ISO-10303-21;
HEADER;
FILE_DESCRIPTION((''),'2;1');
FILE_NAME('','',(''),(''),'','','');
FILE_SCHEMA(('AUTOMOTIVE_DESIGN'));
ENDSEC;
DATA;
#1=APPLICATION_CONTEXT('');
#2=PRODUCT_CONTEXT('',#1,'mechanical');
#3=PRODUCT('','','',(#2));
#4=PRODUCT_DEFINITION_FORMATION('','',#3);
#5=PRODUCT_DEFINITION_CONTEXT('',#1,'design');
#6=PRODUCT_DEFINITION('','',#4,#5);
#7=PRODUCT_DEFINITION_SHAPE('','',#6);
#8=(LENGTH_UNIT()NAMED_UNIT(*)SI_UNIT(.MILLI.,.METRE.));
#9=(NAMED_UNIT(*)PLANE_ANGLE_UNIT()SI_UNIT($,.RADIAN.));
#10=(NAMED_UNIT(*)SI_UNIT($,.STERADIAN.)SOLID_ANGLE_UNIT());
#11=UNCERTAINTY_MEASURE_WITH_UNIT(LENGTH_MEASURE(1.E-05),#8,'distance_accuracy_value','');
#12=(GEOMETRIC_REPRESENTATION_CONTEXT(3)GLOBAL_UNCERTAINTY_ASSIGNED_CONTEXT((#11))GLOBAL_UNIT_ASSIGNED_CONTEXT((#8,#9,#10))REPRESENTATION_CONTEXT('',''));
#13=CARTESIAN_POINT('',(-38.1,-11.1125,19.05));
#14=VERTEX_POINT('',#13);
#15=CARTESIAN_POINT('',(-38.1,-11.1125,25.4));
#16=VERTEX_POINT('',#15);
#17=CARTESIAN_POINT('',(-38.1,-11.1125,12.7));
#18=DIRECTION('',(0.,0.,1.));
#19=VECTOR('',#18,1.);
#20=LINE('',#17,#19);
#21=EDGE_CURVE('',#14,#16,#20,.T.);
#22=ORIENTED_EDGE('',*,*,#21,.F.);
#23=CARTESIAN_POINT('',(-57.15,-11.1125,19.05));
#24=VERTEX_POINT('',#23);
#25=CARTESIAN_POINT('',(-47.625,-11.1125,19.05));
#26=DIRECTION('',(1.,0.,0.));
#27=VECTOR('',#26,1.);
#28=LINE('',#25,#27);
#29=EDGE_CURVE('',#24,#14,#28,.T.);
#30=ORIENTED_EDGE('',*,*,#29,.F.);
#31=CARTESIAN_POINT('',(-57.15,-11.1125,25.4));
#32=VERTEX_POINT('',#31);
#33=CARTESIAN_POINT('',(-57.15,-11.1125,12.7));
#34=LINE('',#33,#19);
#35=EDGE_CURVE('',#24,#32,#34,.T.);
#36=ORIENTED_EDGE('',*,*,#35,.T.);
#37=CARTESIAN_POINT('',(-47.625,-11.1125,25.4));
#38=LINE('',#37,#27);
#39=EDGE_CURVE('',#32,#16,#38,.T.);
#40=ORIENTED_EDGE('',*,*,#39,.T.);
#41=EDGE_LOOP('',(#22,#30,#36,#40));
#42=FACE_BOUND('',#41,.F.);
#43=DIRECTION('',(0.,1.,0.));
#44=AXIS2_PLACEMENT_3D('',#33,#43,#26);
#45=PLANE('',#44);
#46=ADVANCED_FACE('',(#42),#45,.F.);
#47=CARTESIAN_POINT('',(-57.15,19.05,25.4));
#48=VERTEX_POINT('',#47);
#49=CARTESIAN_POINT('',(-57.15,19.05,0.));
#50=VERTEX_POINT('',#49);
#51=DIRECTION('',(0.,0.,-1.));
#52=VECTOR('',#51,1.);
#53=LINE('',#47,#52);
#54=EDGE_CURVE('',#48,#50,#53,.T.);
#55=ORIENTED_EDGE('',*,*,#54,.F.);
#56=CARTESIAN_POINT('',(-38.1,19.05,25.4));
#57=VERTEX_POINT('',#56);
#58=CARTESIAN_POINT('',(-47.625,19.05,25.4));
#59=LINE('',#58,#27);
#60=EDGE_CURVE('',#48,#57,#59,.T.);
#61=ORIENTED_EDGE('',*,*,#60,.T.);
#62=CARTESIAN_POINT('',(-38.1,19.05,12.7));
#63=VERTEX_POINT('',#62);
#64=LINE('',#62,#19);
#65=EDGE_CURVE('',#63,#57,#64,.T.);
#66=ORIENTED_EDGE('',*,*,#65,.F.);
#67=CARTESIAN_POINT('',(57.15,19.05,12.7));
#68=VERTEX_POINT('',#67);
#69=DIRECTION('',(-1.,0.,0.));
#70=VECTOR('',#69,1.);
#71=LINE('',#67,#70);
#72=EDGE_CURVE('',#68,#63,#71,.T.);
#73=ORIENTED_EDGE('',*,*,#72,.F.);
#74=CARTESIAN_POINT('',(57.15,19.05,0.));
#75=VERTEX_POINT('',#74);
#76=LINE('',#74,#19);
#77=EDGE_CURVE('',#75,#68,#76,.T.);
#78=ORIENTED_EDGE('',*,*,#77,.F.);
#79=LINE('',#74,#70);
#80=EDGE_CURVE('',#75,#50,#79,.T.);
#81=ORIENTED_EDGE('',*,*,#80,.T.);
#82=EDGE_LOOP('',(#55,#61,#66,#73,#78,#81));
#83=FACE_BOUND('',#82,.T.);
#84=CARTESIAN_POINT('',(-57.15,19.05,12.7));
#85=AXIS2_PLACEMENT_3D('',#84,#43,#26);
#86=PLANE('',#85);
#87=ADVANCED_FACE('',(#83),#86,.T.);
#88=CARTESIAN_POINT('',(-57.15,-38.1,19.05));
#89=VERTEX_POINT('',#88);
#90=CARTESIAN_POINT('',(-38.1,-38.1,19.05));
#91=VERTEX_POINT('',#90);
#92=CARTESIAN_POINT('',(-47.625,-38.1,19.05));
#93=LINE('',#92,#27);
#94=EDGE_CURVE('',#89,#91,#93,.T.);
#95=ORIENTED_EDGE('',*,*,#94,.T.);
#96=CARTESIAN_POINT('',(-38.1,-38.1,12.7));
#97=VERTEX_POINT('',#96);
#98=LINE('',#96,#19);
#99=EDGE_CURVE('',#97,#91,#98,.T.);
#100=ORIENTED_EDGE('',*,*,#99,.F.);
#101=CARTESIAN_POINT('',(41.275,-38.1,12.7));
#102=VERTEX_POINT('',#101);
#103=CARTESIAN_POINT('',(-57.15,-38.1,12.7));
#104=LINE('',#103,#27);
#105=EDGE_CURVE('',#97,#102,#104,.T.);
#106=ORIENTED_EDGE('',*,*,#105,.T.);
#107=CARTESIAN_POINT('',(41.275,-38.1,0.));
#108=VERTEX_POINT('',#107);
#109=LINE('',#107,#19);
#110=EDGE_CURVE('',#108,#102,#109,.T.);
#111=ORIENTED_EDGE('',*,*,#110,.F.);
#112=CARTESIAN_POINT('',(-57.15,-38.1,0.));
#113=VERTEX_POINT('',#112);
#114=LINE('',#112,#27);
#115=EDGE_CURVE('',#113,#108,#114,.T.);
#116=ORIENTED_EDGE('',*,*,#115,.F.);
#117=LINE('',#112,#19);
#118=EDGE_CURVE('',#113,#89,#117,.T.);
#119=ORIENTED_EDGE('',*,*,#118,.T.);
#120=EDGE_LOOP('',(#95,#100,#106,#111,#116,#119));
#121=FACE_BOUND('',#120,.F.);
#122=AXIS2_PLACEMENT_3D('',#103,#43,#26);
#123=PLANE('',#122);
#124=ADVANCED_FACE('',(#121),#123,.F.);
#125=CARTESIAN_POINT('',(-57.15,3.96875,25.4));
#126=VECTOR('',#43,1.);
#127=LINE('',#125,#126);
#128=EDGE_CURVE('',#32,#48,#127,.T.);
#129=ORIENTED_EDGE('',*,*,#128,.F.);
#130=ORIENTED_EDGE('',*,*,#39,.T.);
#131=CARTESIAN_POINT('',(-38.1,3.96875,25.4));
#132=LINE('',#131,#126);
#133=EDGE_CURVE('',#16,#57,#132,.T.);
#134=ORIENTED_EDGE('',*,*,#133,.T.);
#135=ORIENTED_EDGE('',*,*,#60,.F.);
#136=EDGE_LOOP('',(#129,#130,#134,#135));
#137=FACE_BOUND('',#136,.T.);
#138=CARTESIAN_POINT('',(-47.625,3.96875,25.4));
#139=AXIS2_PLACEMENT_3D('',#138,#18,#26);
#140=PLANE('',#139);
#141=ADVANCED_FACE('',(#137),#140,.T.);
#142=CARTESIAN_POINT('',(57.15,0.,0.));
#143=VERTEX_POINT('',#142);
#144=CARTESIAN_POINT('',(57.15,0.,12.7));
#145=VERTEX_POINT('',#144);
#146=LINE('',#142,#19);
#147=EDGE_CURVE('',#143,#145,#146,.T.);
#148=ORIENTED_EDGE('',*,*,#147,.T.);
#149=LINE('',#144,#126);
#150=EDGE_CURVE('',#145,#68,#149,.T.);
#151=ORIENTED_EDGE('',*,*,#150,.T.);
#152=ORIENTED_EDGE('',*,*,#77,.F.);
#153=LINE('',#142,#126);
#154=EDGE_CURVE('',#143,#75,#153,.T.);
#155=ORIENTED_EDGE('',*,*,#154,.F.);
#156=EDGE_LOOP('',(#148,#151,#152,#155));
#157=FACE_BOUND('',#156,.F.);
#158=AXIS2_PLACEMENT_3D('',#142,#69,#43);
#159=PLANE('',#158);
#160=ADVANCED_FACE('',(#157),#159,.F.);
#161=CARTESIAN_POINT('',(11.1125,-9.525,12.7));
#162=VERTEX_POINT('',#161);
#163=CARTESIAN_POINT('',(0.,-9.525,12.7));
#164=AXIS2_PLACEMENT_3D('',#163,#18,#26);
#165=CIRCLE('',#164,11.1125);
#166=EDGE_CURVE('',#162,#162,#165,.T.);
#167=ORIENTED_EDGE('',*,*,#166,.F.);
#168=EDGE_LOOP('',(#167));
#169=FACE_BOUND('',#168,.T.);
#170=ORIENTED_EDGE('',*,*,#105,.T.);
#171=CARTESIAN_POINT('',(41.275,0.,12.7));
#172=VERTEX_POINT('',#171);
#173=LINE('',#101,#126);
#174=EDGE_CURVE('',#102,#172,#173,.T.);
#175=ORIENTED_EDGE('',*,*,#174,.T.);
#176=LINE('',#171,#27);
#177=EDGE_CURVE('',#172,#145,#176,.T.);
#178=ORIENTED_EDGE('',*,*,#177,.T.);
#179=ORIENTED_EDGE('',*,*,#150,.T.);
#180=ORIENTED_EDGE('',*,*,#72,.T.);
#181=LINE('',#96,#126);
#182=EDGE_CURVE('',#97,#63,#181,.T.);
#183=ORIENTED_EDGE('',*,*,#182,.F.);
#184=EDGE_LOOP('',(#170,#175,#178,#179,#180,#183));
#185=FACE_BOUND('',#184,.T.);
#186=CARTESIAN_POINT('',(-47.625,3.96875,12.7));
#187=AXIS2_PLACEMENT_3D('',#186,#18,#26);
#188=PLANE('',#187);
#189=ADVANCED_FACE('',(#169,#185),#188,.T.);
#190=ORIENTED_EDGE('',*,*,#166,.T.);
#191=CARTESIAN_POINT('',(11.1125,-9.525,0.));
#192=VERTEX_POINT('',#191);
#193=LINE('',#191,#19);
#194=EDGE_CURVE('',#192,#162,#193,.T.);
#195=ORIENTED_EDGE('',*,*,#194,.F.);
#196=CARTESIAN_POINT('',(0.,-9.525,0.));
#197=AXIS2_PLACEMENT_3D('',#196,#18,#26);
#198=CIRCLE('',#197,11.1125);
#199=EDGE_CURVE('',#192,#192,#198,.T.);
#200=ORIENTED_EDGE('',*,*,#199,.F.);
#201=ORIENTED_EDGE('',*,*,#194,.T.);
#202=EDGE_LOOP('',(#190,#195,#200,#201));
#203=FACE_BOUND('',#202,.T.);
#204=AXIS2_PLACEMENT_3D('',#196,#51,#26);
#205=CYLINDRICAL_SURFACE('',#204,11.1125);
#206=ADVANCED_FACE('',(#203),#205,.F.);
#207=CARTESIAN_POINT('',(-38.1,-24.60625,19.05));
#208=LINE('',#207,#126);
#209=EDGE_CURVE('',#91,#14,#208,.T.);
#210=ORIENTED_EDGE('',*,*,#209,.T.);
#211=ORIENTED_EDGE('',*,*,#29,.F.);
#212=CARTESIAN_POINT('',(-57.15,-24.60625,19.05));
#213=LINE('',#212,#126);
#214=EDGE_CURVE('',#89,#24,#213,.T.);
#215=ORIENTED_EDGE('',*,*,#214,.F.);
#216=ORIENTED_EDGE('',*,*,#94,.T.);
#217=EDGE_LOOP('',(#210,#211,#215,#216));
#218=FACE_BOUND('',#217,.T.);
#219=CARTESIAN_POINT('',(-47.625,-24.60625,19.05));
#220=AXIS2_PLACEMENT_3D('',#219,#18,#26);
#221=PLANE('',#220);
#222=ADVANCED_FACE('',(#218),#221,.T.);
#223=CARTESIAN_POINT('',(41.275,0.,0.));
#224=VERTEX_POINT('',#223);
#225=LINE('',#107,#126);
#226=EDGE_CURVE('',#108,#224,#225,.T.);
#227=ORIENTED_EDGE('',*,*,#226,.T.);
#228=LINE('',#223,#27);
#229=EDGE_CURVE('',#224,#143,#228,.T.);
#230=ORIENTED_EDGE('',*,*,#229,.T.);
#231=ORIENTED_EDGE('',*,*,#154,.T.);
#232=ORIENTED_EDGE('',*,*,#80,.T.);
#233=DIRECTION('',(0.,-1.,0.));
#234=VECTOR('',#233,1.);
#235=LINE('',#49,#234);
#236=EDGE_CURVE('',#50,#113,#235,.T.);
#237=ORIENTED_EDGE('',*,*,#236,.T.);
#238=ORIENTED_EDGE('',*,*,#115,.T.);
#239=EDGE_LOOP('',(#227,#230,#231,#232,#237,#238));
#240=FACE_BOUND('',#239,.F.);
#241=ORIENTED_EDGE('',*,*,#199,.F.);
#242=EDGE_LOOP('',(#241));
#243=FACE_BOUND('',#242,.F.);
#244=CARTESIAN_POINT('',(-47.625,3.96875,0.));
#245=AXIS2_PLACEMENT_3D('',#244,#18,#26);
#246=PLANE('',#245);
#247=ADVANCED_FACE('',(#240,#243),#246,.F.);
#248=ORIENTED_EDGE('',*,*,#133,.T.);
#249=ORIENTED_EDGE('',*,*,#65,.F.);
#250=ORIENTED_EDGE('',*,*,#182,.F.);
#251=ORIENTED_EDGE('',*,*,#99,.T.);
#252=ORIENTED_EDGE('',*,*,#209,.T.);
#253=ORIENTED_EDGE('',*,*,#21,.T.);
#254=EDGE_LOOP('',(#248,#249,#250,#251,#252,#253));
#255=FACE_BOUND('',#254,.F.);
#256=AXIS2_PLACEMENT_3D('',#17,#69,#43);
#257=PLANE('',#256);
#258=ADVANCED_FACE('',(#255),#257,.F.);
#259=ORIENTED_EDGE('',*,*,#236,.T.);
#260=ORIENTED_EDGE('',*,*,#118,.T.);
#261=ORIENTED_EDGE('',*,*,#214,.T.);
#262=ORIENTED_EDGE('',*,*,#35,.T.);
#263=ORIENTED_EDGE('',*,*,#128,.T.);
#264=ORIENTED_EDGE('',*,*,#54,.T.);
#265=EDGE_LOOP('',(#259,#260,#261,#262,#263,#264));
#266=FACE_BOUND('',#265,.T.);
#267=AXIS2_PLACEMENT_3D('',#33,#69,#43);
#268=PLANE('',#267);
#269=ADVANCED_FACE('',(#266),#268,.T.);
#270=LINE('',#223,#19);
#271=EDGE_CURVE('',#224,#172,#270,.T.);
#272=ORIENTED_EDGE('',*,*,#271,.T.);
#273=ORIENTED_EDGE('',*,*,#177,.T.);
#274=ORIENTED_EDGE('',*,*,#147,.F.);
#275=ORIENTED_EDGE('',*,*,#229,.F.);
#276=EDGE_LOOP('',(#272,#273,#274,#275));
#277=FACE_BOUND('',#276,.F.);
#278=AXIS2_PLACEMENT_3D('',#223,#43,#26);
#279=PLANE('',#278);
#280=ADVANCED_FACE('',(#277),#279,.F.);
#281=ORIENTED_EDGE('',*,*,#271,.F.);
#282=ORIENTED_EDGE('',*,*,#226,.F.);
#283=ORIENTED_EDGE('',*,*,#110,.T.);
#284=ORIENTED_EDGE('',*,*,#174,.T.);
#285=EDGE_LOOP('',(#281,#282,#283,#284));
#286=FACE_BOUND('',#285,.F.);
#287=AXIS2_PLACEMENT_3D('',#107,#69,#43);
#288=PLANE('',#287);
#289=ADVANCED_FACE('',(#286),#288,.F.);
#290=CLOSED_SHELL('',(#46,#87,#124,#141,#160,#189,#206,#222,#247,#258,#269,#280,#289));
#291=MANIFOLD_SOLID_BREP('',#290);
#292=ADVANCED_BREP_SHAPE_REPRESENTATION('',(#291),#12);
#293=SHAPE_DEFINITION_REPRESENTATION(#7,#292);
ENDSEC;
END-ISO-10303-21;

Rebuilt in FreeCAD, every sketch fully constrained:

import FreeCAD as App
import Part
import Sketcher
Q = App.Units.Quantity


def add_polygon(sketch, points):
    """Adds a closed chain of lines whose ends are joined by coincident constraints."""
    first, n = sketch.GeometryCount, len(points)
    for a, b in zip(points, points[1:] + points[:1]):
        sketch.addGeometry(Part.LineSegment(App.Vector(*a, 0), App.Vector(*b, 0)), False)
    for i in range(n):
        sketch.addConstraint(Sketcher.Constraint("Coincident", first + i, 2, first + (i + 1) % n, 1))

doc = App.newDocument("Part")
body = doc.addObject("PartDesign::Body", "Body")

# Sketch on XY plane
sketch1 = doc.addObject("Sketcher::SketchObject", "Sketch")
body.addObject(sketch1)
sketch1.AttachmentSupport = (doc.XY_Plane, [""])
sketch1.MapMode = "FlatFace"
add_polygon(sketch1, [(-57.15, 19.05), (-57.15, -38.1), (41.275, -38.1), (41.275, 0), (57.15, 0), (57.15, 19.05)])  # lines 0-5
sketch1.addGeometry(Part.Circle(App.Vector(0, -9.525, 0), App.Vector(0, 0, 1), 11.1125), False)  # 6
sketch1.addConstraint(Sketcher.Constraint("Vertical", 0))
sketch1.addConstraint(Sketcher.Constraint("Horizontal", 1))
sketch1.addConstraint(Sketcher.Constraint("Vertical", 2))
sketch1.addConstraint(Sketcher.Constraint("Horizontal", 3))
sketch1.addConstraint(Sketcher.Constraint("Vertical", 4))
sketch1.addConstraint(Sketcher.Constraint("Horizontal", 5))
sketch1.addConstraint(Sketcher.Constraint("PointOnObject", 6, 3, -2))
sketch1.addConstraint(Sketcher.Constraint("PointOnObject", 2, 2, -1))
sketch1.addConstraint(Sketcher.Constraint("Diameter", 6, Q("0.875 in")))
sketch1.addConstraint(Sketcher.Constraint("DistanceX", 5, 2, 5, 1, Q("4.5 in")))
sketch1.addConstraint(Sketcher.Constraint("DistanceY", 2, 1, 2, 2, Q("1.5 in")))
sketch1.addConstraint(Sketcher.Constraint("DistanceY", 0, 2, 0, 1, Q("2.25 in")))
sketch1.addConstraint(Sketcher.Constraint("DistanceX", 1, 1, 1, 2, Q("3.875 in")))
sketch1.addConstraint(Sketcher.Constraint("DistanceX", 0, 2, -1, 1, Q("2.25 in")))
sketch1.addConstraint(Sketcher.Constraint("DistanceY", 6, 3, -1, 1, Q("0.375 in")))
pad1 = doc.addObject("PartDesign::Pad", "Pad")
body.addObject(pad1)
pad1.Profile = sketch1
pad1.Length = Q("0.5 in")

# Sketch on XY plane
sketch2 = doc.addObject("Sketcher::SketchObject", "Sketch001")
body.addObject(sketch2)
sketch2.AttachmentSupport = (doc.XY_Plane, [""])
sketch2.MapMode = "FlatFace"
sketch2.AttachmentOffset = App.Placement(App.Vector(0, 0, 0.5 * 25.4), App.Rotation())
add_polygon(sketch2, [(-57.15, -11.1125), (-57.15, -38.1), (-38.1, -38.1), (-38.1, -11.1125)])  # lines 0-3
sketch2.addConstraint(Sketcher.Constraint("Vertical", 0))
sketch2.addConstraint(Sketcher.Constraint("Horizontal", 1))
sketch2.addConstraint(Sketcher.Constraint("Vertical", 2))
sketch2.addConstraint(Sketcher.Constraint("Horizontal", 3))
sketch2.addConstraint(Sketcher.Constraint("DistanceX", 1, 1, 1, 2, Q("0.75 in")))
sketch2.addConstraint(Sketcher.Constraint("DistanceY", 0, 2, -1, 1, Q("1.5 in")))
sketch2.addConstraint(Sketcher.Constraint("DistanceX", 1, 2, -1, 1, Q("1.5 in")))
sketch2.addConstraint(Sketcher.Constraint("DistanceY", 0, 2, 0, 1, Q("1.0625 in")))
pad2 = doc.addObject("PartDesign::Pad", "Pad001")
body.addObject(pad2)
pad2.Profile = sketch2
pad2.Length = Q("0.25 in")

# Sketch on XY plane
sketch3 = doc.addObject("Sketcher::SketchObject", "Sketch002")
body.addObject(sketch3)
sketch3.AttachmentSupport = (doc.XY_Plane, [""])
sketch3.MapMode = "FlatFace"
sketch3.AttachmentOffset = App.Placement(App.Vector(0, 0, 0.5 * 25.4), App.Rotation())
add_polygon(sketch3, [(-57.15, 19.05), (-57.15, -11.1125), (-38.1, -11.1125), (-38.1, 19.05)])  # lines 0-3
sketch3.addConstraint(Sketcher.Constraint("Vertical", 0))
sketch3.addConstraint(Sketcher.Constraint("Horizontal", 1))
sketch3.addConstraint(Sketcher.Constraint("Vertical", 2))
sketch3.addConstraint(Sketcher.Constraint("Horizontal", 3))
sketch3.addConstraint(Sketcher.Constraint("DistanceX", 1, 1, 1, 2, Q("0.75 in")))
sketch3.addConstraint(Sketcher.Constraint("DistanceX", 1, 2, -1, 1, Q("1.5 in")))
sketch3.addConstraint(Sketcher.Constraint("DistanceY", 0, 2, 0, 1, Q("1.1875 in")))
sketch3.addConstraint(Sketcher.Constraint("DistanceY", -1, 1, 2, 2, Q("0.75 in")))
pad3 = doc.addObject("PartDesign::Pad", "Pad002")
body.addObject(pad3)
pad3.Profile = sketch3
pad3.Length = Q("0.5 in")

doc.recompute()
